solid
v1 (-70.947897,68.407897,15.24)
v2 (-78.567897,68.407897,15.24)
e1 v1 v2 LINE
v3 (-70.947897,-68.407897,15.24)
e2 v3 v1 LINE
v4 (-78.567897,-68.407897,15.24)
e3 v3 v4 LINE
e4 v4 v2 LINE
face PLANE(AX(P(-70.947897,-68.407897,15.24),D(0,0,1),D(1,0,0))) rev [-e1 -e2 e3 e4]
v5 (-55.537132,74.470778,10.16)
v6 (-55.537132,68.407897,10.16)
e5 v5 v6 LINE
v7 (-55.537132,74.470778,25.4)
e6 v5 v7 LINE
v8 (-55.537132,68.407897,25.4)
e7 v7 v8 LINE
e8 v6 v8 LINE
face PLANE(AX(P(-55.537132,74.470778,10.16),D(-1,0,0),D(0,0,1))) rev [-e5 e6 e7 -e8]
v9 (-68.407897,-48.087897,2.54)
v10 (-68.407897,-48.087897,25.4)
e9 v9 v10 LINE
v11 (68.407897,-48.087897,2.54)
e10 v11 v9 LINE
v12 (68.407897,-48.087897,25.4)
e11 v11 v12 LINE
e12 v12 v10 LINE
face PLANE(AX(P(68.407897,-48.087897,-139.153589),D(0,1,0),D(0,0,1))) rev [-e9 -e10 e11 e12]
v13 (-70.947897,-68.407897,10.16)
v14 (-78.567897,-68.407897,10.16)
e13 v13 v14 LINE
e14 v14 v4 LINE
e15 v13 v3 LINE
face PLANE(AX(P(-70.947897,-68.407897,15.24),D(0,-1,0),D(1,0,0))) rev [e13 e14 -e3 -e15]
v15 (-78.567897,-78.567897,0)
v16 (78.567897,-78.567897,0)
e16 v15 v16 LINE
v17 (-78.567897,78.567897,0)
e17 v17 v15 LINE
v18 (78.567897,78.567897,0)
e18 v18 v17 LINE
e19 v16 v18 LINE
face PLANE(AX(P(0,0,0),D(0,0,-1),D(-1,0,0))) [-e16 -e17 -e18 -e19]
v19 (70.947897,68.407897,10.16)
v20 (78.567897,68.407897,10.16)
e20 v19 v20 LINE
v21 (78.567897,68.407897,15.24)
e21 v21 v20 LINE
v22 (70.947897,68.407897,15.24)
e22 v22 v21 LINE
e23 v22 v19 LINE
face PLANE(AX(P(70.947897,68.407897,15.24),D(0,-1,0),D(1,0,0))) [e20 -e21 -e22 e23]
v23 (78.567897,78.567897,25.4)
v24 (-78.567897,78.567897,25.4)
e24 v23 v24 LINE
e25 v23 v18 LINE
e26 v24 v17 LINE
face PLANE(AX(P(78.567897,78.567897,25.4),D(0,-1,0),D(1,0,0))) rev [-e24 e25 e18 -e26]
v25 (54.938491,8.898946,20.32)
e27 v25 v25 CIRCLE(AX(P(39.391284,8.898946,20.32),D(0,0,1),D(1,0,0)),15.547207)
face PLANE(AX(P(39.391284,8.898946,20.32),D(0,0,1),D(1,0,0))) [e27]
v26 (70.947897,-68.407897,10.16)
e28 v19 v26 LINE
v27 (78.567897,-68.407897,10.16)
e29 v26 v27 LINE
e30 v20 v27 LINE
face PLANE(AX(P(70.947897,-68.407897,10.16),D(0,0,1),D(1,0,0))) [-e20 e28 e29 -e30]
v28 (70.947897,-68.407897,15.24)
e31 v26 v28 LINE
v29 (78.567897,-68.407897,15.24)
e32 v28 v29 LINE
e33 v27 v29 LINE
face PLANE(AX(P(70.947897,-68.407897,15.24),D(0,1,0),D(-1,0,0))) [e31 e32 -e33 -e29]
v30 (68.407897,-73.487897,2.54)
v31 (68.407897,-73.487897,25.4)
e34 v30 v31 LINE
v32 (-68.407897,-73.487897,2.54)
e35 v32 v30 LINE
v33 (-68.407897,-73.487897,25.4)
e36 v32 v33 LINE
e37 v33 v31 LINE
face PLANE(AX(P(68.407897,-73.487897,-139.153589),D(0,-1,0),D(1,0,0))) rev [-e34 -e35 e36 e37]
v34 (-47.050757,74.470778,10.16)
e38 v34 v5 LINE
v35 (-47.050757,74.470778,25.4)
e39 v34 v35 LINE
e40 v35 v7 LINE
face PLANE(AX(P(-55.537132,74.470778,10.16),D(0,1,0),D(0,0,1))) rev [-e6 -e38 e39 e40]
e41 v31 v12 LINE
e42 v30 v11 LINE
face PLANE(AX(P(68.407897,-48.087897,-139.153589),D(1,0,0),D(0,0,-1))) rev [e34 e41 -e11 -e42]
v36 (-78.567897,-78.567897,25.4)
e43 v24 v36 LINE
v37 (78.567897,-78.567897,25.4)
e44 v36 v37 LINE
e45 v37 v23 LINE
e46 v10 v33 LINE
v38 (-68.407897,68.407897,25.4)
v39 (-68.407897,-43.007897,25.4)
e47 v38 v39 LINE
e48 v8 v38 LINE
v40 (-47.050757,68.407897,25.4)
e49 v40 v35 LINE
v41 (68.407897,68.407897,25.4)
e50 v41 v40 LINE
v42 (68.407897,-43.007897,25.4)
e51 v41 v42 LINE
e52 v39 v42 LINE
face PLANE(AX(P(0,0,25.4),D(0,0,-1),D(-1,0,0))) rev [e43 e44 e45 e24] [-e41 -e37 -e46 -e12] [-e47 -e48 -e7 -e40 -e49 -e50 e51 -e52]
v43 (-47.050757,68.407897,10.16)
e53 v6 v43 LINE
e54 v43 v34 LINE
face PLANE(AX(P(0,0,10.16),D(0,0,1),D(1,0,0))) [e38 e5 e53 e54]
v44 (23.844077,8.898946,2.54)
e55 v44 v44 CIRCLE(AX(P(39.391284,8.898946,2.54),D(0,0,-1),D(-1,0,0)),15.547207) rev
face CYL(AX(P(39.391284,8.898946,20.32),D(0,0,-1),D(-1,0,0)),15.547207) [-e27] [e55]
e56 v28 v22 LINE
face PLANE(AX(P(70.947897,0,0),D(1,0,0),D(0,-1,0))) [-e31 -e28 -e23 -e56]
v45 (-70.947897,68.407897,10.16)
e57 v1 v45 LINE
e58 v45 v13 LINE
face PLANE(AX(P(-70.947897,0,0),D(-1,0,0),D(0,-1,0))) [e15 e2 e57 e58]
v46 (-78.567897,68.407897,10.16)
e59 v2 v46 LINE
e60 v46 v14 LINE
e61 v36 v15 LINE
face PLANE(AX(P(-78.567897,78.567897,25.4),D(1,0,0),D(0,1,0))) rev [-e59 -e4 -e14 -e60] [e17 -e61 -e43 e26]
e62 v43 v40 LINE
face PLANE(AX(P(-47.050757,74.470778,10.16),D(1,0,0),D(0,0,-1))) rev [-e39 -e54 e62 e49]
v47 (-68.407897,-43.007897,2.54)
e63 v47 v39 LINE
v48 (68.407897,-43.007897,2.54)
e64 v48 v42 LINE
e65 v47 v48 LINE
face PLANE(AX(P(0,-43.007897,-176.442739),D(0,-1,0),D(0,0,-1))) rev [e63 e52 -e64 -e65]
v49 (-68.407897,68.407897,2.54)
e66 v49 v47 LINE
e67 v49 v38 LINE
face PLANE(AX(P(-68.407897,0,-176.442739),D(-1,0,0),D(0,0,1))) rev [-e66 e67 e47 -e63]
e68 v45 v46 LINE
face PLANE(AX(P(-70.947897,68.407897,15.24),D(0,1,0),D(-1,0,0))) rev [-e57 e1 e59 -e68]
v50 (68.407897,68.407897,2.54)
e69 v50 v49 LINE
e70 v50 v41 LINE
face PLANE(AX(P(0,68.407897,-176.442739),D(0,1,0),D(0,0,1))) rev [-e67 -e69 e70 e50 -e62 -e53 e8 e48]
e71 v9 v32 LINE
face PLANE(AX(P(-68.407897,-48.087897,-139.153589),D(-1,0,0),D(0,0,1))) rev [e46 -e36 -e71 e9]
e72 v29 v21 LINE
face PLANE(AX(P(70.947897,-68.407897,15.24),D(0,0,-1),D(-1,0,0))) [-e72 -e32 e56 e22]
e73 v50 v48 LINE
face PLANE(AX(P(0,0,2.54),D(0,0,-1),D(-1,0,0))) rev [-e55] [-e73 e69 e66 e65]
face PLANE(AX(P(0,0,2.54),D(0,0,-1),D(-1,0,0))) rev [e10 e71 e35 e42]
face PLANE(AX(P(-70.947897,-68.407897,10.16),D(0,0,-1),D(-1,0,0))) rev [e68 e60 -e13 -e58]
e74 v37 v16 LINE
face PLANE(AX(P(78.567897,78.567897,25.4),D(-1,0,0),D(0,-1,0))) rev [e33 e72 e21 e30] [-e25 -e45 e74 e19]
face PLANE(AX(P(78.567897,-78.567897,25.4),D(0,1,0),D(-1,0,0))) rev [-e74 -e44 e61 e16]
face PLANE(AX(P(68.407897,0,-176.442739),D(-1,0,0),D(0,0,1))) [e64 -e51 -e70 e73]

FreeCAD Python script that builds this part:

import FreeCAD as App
import Part
import Sketcher
Q = App.Units.Quantity

doc = App.newDocument("Part")
params = doc.addObject("Spreadsheet::Sheet", "Params")
for row, (alias, value) in enumerate([
    ("pad1_length", "1 in"),
    ("pocket1_length", "0.9 in"),
    ("sketch3_height", "1 in"),
    ("pocket2_length", "0.9 in"),
    ("sketch4_height", "0.2 in"),
    ("pocket3_length", "0.3 in"),
    ("pocket4_length", "0.6 in"),
    ("pad2_length", "0.7 in"),
], start=1):
    params.set(f"A{row}", alias)
    params.set(f"B{row}", "=" + value)
    params.setAlias(f"B{row}", alias)

body = doc.addObject("PartDesign::Body", "Body")

# Sketch on XY plane
sketch1 = body.newObject("Sketcher::SketchObject", "Sketch")
sketch1.AttachmentSupport = (doc.getObject("XY_Plane"), [""])
sketch1.MapMode = "FlatFace"
sketch1.addGeometry([
    Part.LineSegment(App.Vector(-79, 79, 0), App.Vector(-79, -79, 0)),
    Part.LineSegment(App.Vector(-79, -79, 0), App.Vector(79, -79, 0)),
    Part.LineSegment(App.Vector(79, -79, 0), App.Vector(79, 79, 0)),
    Part.LineSegment(App.Vector(79, 79, 0), App.Vector(-79, 79, 0)),
], False)
sketch1.addConstraint([
    Sketcher.Constraint("Coincident", 0, 2, 1, 1),
    Sketcher.Constraint("Coincident", 1, 2, 2, 1),
    Sketcher.Constraint("Coincident", 2, 2, 3, 1),
    Sketcher.Constraint("Coincident", 3, 2, 0, 1),
    Sketcher.Constraint("Vertical", 0),
    Sketcher.Constraint("Horizontal", 1),
    Sketcher.Constraint("Vertical", 2),
    Sketcher.Constraint("Horizontal", 3),
    Sketcher.Constraint("Symmetric", 0, 2, 2, 2, -1, 1),
    Sketcher.Constraint("Equal", 3, 0),
    Sketcher.Constraint("DistanceX", 1, 1, 1, 2, Q("157.135793 mm")),
])
pad1 = body.newObject("PartDesign::Pad", "Pad")
pad1.Profile = sketch1
pad1.setExpression("Length", "Params.pad1_length")

# Sketch on XY plane
sketch2 = body.newObject("Sketcher::SketchObject", "Sketch001")
sketch2.AttachmentSupport = (doc.getObject("XY_Plane"), [""])
sketch2.MapMode = "FlatFace"
sketch2.AttachmentOffset = App.Placement(App.Vector(0, 0, 1 * 25.4), App.Rotation())
sketch2.addGeometry([
    Part.LineSegment(App.Vector(-68, 68, 0), App.Vector(-68, -43, 0)),
    Part.LineSegment(App.Vector(-68, -43, 0), App.Vector(68, -43, 0)),
    Part.LineSegment(App.Vector(68, -43, 0), App.Vector(68, 68, 0)),
    Part.LineSegment(App.Vector(68, 68, 0), App.Vector(-68, 68, 0)),
], False)
sketch2.addConstraint([
    Sketcher.Constraint("Coincident", 0, 2, 1, 1),
    Sketcher.Constraint("Coincident", 1, 2, 2, 1),
    Sketcher.Constraint("Coincident", 2, 2, 3, 1),
    Sketcher.Constraint("Coincident", 3, 2, 0, 1),
    Sketcher.Constraint("Vertical", 0),
    Sketcher.Constraint("Horizontal", 1),
    Sketcher.Constraint("Vertical", 2),
    Sketcher.Constraint("Horizontal", 3),
    Sketcher.Constraint("DistanceX", 1, 1, 1, 2, Q("136.815793 mm")),
    Sketcher.Constraint("DistanceY", 0, 2, 0, 1, Q("111.415793 mm")),
    Sketcher.Constraint("DistanceX", 0, 2, -1, 1, Q("68.407897 mm")),
    Sketcher.Constraint("DistanceY", 0, 2, -1, 1, Q("43.007897 mm")),
])
pocket1 = body.newObject("PartDesign::Pocket", "Pocket")
pocket1.Profile = sketch2
pocket1.setExpression("Length", "Params.pocket1_length")

# Sketch on XY plane
sketch3 = body.newObject("Sketcher::SketchObject", "Sketch002")
sketch3.AttachmentSupport = (doc.getObject("XY_Plane"), [""])
sketch3.MapMode = "FlatFace"
sketch3.AttachmentOffset = App.Placement(App.Vector(0, 0, 1 * 25.4), App.Rotation())
sketch3.addGeometry([
    Part.LineSegment(App.Vector(-68, -48, 0), App.Vector(-68, -73, 0)),
    Part.LineSegment(App.Vector(-68, -73, 0), App.Vector(68, -73, 0)),
    Part.LineSegment(App.Vector(68, -73, 0), App.Vector(68, -48, 0)),
    Part.LineSegment(App.Vector(68, -48, 0), App.Vector(-68, -48, 0)),
], False)
sketch3.addConstraint([
    Sketcher.Constraint("Coincident", 0, 2, 1, 1),
    Sketcher.Constraint("Coincident", 1, 2, 2, 1),
    Sketcher.Constraint("Coincident", 2, 2, 3, 1),
    Sketcher.Constraint("Coincident", 3, 2, 0, 1),
    Sketcher.Constraint("Vertical", 0),
    Sketcher.Constraint("Horizontal", 1),
    Sketcher.Constraint("Vertical", 2),
    Sketcher.Constraint("Horizontal", 3),
    Sketcher.Constraint("DistanceY", 0, 2, 0, 1, Q("1 in")),
    Sketcher.Constraint("DistanceX", 1, 1, 1, 2, Q("136.815793 mm")),
    Sketcher.Constraint("DistanceX", 0, 2, -1, 1, Q("68.407897 mm")),
    Sketcher.Constraint("DistanceY", 0, 2, -1, 1, Q("73.487897 mm")),
])
sketch3.setExpression("Constraints[8]", "Params.sketch3_height")
pocket2 = body.newObject("PartDesign::Pocket", "Pocket001")
pocket2.Profile = sketch3
pocket2.setExpression("Length", "Params.pocket2_length")

# Sketch on YZ plane
sketch4 = body.newObject("Sketcher::SketchObject", "Sketch003")
sketch4.AttachmentSupport = (doc.getObject("YZ_Plane"), [""])
sketch4.MapMode = "FlatFace"
sketch4.AttachmentOffset = App.Placement(App.Vector(0, 0, -78.567897), App.Rotation())
sketch4.addGeometry([
    Part.LineSegment(App.Vector(68, 10, 0), App.Vector(-68, 10, 0)),
    Part.LineSegment(App.Vector(-68, 10, 0), App.Vector(-68, 15, 0)),
    Part.LineSegment(App.Vector(-68, 15, 0), App.Vector(68, 15, 0)),
    Part.LineSegment(App.Vector(68, 15, 0), App.Vector(68, 10, 0)),
], False)
sketch4.addConstraint([
    Sketcher.Constraint("Coincident", 0, 2, 1, 1),
    Sketcher.Constraint("Coincident", 1, 2, 2, 1),
    Sketcher.Constraint("Coincident", 2, 2, 3, 1),
    Sketcher.Constraint("Coincident", 3, 2, 0, 1),
    Sketcher.Constraint("Horizontal", 0),
    Sketcher.Constraint("Vertical", 1),
    Sketcher.Constraint("Horizontal", 2),
    Sketcher.Constraint("Vertical", 3),
    Sketcher.Constraint("DistanceY", 1, 1, 1, 2, Q("0.2 in")),
    Sketcher.Constraint("DistanceY", -1, 1, 0, 2, Q("0.4 in")),
    Sketcher.Constraint("DistanceX", 0, 2, 0, 1, Q("136.815793 mm")),
    Sketcher.Constraint("DistanceX", 0, 2, -1, 1, Q("68.407897 mm")),
])
sketch4.setExpression("Constraints[8]", "Params.sketch4_height")
pocket3 = body.newObject("PartDesign::Pocket", "Pocket002")
pocket3.Profile = sketch4
pocket3.setExpression("Length", "Params.pocket3_length")
pocket3.Reversed = True
doc.recompute()

mirrored = body.newObject("PartDesign::Mirrored", "Mirrored")
mirrored.Originals = [pocket3]
mirrored.MirrorPlane = (doc.getObject("YZ_Plane"), [""])
body.Tip = mirrored

# Sketch on XY plane
sketch5 = body.newObject("Sketcher::SketchObject", "Sketch004")
sketch5.AttachmentSupport = (doc.getObject("XY_Plane"), [""])
sketch5.MapMode = "FlatFace"
sketch5.AttachmentOffset = App.Placement(App.Vector(0, 0, 1 * 25.4), App.Rotation())
sketch5.addGeometry([
    Part.LineSegment(App.Vector(-56, 74, 0), App.Vector(-56, 68, 0)),
    Part.LineSegment(App.Vector(-56, 68, 0), App.Vector(-47, 68, 0)),
    Part.LineSegment(App.Vector(-47, 68, 0), App.Vector(-47, 74, 0)),
    Part.LineSegment(App.Vector(-47, 74, 0), App.Vector(-56, 74, 0)),
], False)
sketch5.addConstraint([
    Sketcher.Constraint("Coincident", 0, 2, 1, 1),
    Sketcher.Constraint("Coincident", 1, 2, 2, 1),
    Sketcher.Constraint("Coincident", 2, 2, 3, 1),
    Sketcher.Constraint("Coincident", 3, 2, 0, 1),
    Sketcher.Constraint("Vertical", 0),
    Sketcher.Constraint("Horizontal", 1),
    Sketcher.Constraint("Vertical", 2),
    Sketcher.Constraint("Horizontal", 3),
    Sketcher.Constraint("DistanceY", 0, 2, 0, 1, Q("6.062881 mm")),
    Sketcher.Constraint("DistanceX", 1, 1, 1, 2, Q("8.486375 mm")),
    Sketcher.Constraint("DistanceX", 0, 2, -1, 1, Q("55.537132 mm")),
    Sketcher.Constraint("DistanceY", -1, 1, 0, 2, Q("68.407897 mm")),
])
pocket4 = body.newObject("PartDesign::Pocket", "Pocket003")
pocket4.Profile = sketch5
pocket4.setExpression("Length", "Params.pocket4_length")

# Sketch on XY plane
sketch6 = body.newObject("Sketcher::SketchObject", "Sketch005")
sketch6.AttachmentSupport = (doc.getObject("XY_Plane"), [""])
sketch6.MapMode = "FlatFace"
sketch6.AttachmentOffset = App.Placement(App.Vector(0, 0, 0.1 * 25.4), App.Rotation())
sketch6.addGeometry(Part.Circle(App.Vector(39, 9, 0), App.Vector(0, 0, 1), 16), False)
sketch6.addConstraint([
    Sketcher.Constraint("Diameter", 0, Q("31.094414 mm")),
    Sketcher.Constraint("DistanceX", -1, 1, 0, 3, Q("39.391284 mm")),
    Sketcher.Constraint("DistanceY", -1, 1, 0, 3, Q("8.898946 mm")),
])
pad2 = body.newObject("PartDesign::Pad", "Pad001")
pad2.Profile = sketch6
pad2.setExpression("Length", "Params.pad2_length")

doc.recompute()
